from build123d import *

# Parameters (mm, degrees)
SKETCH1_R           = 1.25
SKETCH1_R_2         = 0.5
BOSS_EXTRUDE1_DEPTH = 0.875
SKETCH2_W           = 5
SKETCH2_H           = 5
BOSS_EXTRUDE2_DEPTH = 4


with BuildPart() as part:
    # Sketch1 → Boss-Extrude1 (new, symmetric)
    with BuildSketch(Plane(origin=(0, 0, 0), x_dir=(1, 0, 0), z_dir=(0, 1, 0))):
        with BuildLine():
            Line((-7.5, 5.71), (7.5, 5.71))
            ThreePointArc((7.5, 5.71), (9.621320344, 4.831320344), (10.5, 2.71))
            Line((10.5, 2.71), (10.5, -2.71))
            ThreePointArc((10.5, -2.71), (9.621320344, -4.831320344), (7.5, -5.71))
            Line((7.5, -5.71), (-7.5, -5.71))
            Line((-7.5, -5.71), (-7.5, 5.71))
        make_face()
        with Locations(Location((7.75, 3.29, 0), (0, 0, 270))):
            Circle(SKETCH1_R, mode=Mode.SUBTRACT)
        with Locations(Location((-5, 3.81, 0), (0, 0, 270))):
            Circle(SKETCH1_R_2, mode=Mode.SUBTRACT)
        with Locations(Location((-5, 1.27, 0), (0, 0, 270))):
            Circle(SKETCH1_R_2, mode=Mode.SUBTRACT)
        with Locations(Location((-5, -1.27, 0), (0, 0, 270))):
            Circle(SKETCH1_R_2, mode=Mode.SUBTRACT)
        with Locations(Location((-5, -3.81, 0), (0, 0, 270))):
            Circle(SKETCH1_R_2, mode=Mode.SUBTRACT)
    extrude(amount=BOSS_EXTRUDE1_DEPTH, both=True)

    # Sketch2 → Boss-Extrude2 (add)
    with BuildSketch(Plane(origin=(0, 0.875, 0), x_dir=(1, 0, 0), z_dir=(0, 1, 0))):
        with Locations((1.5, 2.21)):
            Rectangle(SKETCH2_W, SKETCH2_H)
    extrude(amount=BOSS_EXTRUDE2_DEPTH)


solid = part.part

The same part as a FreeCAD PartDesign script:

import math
import FreeCAD as App
import Part
import Sketcher

doc = App.newDocument("Part")
body = doc.addObject("PartDesign::Body", "Body")

sketch1 = doc.addObject("Sketcher::SketchObject", "Sketch")
body.addObject(sketch1)
sketch1.AttachmentSupport = (doc.XZ_Plane, [""])
sketch1.MapMode = "FlatFace"
sketch1.addGeometry([
    Part.LineSegment(App.Vector(7.5, -5.71, 0), App.Vector(-7.5, -5.71, 0)),
    Part.LineSegment(App.Vector(-7.5, -5.71, 0), App.Vector(-7.5, 5.71, 0)),
    Part.LineSegment(App.Vector(-7.5, 5.71, 0), App.Vector(7.5, 5.71, 0)),
    Part.ArcOfCircle(Part.Circle(App.Vector(7.5, 2.71, 0), App.Vector(0, 0, 1), 3), math.radians(0), math.radians(90)),
    Part.LineSegment(App.Vector(10.5, 2.71, 0), App.Vector(10.5, -2.71, 0)),
    Part.ArcOfCircle(Part.Circle(App.Vector(7.5, -2.71, 0), App.Vector(0, 0, 1), 3), math.radians(-90), math.radians(0)),
    Part.Circle(App.Vector(-5, 3.81, 0), App.Vector(0, 0, 1), 0.5),
    Part.Circle(App.Vector(-5, 1.27, 0), App.Vector(0, 0, 1), 0.5),
    Part.Circle(App.Vector(7.75, -3.29, 0), App.Vector(0, 0, 1), 1.25),
    Part.Circle(App.Vector(-5, -1.27, 0), App.Vector(0, 0, 1), 0.5),
    Part.Circle(App.Vector(-5, -3.81, 0), App.Vector(0, 0, 1), 0.5),
], False)
sketch1.addConstraint([
    Sketcher.Constraint("Coincident", 0, 2, 1, 1),
    Sketcher.Constraint("Coincident", 1, 2, 2, 1),
    Sketcher.Constraint("Tangent", 2, 2, 3, 2),
    Sketcher.Constraint("Tangent", 3, 1, 4, 1),
    Sketcher.Constraint("Tangent", 4, 2, 5, 2),
    Sketcher.Constraint("Tangent", 5, 1, 0, 1),
    Sketcher.Constraint("Horizontal", 0),
    Sketcher.Constraint("Vertical", 1),
    Sketcher.Constraint("Horizontal", 2),
    Sketcher.Constraint("Vertical", 4),
    Sketcher.Constraint("Equal", 3, 5),
    Sketcher.Constraint("Equal", 6, 7),
    Sketcher.Constraint("Equal", 7, 9),
    Sketcher.Constraint("Equal", 9, 10),
    Sketcher.Constraint("Symmetric", 0, 2, 2, 2, -1, 1),
    Sketcher.Constraint("Symmetric", 7, 3, 9, 3, -1),
    Sketcher.Constraint("Symmetric", 6, 3, 10, 3, -1),
    Sketcher.Constraint("Vertical", 6, 3, 7, 3),
    Sketcher.Constraint("Diameter", 6, 1.0),
    Sketcher.Constraint("Radius", 3, 3.0),
    Sketcher.Constraint("Diameter", 8, 2.5),
    Sketcher.Constraint("DistanceX", 0, 2, 0, 1, 15.0),
    Sketcher.Constraint("DistanceX", 6, 3, -1, 1, 5.0),
    Sketcher.Constraint("DistanceY", 8, 3, 3, 3, 6.0),
    Sketcher.Constraint("DistanceY", 1, 1, 1, 2, 11.42),
    Sketcher.Constraint("DistanceY", 3, 3, 6, 3, 1.1),
    Sketcher.Constraint("DistanceY", -1, 1, 7, 3, 1.27),
    Sketcher.Constraint("DistanceX", -1, 1, 8, 3, 7.75),
])
pad1 = doc.addObject("PartDesign::Pad", "Pad")
body.addObject(pad1)
pad1.Profile = sketch1
pad1.Length = 1.75
pad1.Midplane = True

sketch2 = doc.addObject("Sketcher::SketchObject", "Sketch001")
body.addObject(sketch2)
sketch2.AttachmentSupport = (doc.XZ_Plane, [""])
sketch2.MapMode = "FlatFace"
sketch2.AttachmentOffset = App.Placement(App.Vector(0, 0, -0.875), App.Rotation())
sketch2.addGeometry([
    Part.LineSegment(App.Vector(-1, -4.71, 0), App.Vector(-1, 0.29, 0)),
    Part.LineSegment(App.Vector(-1, 0.29, 0), App.Vector(4, 0.29, 0)),
    Part.LineSegment(App.Vector(4, 0.29, 0), App.Vector(4, -4.71, 0)),
    Part.LineSegment(App.Vector(4, -4.71, 0), App.Vector(-1, -4.71, 0)),
], False)
sketch2.addConstraint([
    Sketcher.Constraint("Coincident", 0, 2, 1, 1),
    Sketcher.Constraint("Coincident", 1, 2, 2, 1),
    Sketcher.Constraint("Coincident", 2, 2, 3, 1),
    Sketcher.Constraint("Coincident", 3, 2, 0, 1),
    Sketcher.Constraint("Vertical", 0),
    Sketcher.Constraint("Horizontal", 1),
    Sketcher.Constraint("Vertical", 2),
    Sketcher.Constraint("Horizontal", 3),
    Sketcher.Constraint("Equal", 3, 0),
    Sketcher.Constraint("DistanceX", 1, 1, 1, 2, 5.0),
    Sketcher.Constraint("DistanceX", 0, 2, -1, 1, 1.0),
    Sketcher.Constraint("DistanceY", -1, 1, 0, 2, 0.29),
])
pad2 = doc.addObject("PartDesign::Pad", "Pad001")
body.addObject(pad2)
pad2.Profile = sketch2
pad2.Length = 4
pad2.Reversed = True

doc.recompute()
